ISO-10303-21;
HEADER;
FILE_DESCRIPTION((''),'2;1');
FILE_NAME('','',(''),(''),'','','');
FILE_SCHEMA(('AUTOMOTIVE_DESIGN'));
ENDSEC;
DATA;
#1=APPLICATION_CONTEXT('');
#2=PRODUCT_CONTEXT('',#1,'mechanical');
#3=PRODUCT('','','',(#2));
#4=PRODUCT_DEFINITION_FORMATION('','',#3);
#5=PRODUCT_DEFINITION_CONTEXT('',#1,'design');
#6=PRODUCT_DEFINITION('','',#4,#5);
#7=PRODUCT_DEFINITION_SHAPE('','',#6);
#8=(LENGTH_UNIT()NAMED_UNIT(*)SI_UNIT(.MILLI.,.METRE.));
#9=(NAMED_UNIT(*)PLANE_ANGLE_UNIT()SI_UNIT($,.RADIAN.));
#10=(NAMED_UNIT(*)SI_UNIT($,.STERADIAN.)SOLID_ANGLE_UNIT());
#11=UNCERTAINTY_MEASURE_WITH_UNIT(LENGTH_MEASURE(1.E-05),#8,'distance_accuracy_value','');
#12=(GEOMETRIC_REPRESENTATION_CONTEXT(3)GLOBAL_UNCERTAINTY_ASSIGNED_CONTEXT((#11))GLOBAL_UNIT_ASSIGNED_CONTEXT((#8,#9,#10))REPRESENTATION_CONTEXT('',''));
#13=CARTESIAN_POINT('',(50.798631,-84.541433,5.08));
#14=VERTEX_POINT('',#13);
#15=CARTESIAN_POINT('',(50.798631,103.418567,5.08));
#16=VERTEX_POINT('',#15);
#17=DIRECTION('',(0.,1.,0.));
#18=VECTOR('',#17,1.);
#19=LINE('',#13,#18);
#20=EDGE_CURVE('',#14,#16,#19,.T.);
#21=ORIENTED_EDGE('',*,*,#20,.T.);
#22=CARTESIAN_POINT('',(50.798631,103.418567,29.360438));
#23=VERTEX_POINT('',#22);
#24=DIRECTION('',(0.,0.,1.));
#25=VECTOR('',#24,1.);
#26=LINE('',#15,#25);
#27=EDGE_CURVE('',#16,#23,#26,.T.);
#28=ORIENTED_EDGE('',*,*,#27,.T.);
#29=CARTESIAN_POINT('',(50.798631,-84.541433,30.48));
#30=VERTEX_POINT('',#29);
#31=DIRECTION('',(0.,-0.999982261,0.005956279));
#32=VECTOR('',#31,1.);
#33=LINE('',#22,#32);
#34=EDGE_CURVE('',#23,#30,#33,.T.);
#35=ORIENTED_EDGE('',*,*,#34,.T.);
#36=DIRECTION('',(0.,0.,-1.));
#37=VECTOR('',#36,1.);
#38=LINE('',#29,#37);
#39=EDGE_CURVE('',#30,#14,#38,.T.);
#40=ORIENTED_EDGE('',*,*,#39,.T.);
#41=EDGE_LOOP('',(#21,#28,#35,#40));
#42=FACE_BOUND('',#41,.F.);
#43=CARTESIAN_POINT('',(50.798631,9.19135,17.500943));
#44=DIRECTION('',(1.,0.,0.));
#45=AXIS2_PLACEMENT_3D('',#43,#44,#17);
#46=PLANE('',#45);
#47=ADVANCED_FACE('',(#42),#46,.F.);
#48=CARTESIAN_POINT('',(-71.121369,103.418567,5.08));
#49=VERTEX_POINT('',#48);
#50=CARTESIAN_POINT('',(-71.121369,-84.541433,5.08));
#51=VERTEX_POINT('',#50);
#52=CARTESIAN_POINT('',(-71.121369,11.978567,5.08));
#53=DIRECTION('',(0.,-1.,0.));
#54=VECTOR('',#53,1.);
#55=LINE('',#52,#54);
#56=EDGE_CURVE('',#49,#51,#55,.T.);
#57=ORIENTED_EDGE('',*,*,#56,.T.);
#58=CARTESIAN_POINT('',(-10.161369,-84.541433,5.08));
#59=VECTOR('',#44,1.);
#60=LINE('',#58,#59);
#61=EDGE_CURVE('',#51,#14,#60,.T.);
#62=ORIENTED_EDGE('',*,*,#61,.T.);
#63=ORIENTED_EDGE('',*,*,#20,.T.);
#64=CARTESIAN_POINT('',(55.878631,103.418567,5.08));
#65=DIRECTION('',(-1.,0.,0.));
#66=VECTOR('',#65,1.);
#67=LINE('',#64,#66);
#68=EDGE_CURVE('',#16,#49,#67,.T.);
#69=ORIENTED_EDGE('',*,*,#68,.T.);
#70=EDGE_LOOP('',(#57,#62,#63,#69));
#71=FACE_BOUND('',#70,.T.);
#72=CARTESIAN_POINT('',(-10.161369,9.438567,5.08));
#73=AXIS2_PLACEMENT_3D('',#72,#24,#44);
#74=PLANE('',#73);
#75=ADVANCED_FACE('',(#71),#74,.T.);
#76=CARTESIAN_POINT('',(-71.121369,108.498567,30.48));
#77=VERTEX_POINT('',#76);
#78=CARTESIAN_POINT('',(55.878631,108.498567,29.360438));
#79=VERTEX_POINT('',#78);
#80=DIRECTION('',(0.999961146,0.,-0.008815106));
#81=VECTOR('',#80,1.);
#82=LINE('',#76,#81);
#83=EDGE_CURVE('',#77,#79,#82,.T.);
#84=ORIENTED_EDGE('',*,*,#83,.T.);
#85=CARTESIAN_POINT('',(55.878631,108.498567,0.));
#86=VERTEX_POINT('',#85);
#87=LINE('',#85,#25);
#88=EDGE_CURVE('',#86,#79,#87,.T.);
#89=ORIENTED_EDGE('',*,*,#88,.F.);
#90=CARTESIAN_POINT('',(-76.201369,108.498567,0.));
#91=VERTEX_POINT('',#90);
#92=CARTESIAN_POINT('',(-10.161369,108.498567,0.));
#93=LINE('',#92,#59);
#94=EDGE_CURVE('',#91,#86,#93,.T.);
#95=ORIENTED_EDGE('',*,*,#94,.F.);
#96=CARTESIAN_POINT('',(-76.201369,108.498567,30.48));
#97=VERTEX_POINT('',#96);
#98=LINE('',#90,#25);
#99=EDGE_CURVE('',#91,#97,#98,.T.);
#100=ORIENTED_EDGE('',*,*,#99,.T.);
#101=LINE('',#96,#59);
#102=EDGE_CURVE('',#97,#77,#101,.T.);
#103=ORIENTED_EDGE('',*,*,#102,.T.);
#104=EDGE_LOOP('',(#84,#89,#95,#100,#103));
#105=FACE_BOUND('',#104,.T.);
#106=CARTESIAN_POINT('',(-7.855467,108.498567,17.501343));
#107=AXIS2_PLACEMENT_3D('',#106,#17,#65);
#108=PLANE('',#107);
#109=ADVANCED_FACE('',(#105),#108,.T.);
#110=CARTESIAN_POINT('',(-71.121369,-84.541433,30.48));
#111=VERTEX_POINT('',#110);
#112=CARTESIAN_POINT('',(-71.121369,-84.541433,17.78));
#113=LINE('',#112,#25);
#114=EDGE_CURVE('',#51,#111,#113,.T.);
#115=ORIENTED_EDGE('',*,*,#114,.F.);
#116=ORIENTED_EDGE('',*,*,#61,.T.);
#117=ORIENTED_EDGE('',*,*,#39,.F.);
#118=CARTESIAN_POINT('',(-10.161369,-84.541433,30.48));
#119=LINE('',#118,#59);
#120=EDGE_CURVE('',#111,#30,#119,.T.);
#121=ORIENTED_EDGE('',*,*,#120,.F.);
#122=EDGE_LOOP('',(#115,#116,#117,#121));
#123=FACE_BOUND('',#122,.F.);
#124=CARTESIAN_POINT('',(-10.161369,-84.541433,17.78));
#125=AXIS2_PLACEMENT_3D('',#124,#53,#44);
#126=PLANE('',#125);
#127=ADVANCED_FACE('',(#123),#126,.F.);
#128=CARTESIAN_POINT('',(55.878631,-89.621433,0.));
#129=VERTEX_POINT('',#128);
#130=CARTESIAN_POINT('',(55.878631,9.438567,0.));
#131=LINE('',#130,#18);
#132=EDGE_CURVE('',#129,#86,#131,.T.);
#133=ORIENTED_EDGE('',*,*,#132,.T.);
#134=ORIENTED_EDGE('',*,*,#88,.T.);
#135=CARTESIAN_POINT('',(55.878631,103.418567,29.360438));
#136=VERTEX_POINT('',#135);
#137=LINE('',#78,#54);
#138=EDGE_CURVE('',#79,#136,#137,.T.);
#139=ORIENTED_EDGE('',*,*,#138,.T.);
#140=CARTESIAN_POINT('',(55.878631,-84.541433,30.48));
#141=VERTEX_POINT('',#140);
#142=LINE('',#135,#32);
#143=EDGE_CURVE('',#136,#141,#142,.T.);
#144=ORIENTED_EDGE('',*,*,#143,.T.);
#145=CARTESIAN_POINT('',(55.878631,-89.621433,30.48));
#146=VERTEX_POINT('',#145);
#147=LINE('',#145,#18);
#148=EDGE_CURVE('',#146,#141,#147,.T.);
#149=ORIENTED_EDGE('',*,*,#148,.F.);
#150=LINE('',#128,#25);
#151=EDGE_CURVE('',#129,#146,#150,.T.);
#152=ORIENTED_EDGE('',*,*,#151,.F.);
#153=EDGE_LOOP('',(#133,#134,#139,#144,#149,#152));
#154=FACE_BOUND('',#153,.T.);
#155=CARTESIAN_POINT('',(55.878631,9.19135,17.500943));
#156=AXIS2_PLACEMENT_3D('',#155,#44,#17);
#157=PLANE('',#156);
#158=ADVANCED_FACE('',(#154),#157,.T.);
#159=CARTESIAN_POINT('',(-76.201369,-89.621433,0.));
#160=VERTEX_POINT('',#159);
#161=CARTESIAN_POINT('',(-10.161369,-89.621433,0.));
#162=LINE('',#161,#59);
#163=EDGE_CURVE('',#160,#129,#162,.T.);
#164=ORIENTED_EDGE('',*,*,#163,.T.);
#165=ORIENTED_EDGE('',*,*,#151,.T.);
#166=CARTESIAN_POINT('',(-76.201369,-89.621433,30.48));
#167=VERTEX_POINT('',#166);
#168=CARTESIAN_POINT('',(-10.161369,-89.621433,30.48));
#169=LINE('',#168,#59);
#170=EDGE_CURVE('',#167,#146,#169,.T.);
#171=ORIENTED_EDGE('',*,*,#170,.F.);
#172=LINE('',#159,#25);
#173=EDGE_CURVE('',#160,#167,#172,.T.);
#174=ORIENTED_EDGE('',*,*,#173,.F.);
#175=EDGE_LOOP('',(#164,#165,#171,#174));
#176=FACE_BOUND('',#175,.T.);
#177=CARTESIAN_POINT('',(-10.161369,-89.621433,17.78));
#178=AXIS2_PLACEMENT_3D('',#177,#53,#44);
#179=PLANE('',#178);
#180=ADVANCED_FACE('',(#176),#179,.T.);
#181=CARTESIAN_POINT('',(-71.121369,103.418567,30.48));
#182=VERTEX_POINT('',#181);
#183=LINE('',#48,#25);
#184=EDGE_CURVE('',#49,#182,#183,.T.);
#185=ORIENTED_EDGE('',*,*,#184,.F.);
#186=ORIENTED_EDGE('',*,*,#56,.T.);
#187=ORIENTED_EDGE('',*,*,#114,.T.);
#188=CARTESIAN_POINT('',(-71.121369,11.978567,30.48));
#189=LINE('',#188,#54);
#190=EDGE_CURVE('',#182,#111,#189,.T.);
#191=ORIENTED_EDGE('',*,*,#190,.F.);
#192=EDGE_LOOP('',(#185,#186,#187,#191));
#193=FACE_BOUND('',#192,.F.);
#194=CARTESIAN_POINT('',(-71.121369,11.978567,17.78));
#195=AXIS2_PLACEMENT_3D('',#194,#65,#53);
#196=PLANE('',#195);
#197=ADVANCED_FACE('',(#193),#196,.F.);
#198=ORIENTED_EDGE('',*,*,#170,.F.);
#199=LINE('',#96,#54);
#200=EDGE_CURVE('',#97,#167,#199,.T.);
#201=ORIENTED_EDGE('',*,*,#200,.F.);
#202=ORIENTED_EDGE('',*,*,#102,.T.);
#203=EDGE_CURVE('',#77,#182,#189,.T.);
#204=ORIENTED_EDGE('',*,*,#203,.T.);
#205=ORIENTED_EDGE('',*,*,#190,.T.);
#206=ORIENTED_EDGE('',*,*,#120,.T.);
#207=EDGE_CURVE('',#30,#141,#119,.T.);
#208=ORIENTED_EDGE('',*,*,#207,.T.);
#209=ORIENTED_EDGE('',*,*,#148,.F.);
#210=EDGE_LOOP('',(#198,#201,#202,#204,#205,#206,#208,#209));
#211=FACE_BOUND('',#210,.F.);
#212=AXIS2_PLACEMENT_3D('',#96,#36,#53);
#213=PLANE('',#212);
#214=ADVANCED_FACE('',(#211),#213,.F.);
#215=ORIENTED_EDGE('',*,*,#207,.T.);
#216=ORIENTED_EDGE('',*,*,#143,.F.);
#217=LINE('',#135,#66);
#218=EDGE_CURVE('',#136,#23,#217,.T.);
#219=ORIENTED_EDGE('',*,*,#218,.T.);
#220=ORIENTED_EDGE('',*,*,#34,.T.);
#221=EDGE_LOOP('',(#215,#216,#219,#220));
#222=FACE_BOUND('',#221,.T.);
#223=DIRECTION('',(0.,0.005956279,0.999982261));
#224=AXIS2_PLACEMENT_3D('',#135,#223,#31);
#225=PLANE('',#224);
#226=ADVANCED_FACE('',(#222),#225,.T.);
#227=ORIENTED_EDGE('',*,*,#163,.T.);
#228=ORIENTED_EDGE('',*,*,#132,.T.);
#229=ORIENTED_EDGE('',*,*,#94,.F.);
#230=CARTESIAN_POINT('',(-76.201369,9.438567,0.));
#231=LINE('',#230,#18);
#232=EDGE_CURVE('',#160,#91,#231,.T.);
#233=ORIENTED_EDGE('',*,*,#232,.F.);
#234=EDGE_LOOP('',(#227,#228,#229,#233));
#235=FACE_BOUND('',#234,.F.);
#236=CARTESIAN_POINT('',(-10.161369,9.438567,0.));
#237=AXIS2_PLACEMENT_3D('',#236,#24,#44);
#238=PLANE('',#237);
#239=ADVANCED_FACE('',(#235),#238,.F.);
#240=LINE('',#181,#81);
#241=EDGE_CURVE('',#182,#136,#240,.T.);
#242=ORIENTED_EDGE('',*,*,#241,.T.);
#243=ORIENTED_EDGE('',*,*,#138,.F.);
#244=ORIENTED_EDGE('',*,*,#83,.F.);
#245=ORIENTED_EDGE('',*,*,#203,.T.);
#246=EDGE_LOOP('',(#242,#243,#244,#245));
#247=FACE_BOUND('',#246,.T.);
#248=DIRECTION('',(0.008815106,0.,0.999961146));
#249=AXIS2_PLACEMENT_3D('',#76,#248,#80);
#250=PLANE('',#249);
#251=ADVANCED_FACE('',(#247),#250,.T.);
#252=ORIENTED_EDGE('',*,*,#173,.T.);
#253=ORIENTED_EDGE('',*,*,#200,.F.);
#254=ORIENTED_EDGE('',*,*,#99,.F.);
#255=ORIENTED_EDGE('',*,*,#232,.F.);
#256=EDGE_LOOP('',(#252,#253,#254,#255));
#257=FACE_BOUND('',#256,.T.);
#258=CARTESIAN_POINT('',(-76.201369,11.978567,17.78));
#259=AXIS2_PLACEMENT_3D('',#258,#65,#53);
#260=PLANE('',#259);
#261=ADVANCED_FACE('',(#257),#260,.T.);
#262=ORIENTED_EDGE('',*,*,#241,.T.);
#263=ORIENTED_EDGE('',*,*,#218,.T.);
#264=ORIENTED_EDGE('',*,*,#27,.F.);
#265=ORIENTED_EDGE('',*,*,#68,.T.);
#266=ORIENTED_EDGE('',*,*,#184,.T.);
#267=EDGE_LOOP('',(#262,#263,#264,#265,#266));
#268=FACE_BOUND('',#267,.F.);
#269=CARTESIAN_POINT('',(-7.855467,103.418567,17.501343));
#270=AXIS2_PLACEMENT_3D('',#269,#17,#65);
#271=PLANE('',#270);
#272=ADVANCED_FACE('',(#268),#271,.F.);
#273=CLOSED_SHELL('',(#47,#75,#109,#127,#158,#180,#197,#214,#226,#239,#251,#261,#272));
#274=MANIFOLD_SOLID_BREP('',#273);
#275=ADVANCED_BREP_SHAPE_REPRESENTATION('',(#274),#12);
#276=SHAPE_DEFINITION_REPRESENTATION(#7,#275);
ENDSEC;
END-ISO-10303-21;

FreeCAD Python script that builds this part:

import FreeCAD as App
import Part
import Sketcher
Q = App.Units.Quantity

doc = App.newDocument("Part")
body = doc.addObject("PartDesign::Body", "Body")

sketch1 = body.newObject("Sketcher::SketchObject", "Sketch")
sketch1.AttachmentSupport = (doc.getObject("XY_Plane"), [""])
sketch1.MapMode = "FlatFace"
sketch1.addGeometry(Part.LineSegment(App.Vector(-76, 108, 0), App.Vector(-76, -90, 0)), False)
sketch1.addGeometry(Part.LineSegment(App.Vector(-76, -90, 0), App.Vector(56, -90, 0)), False)
sketch1.addGeometry(Part.LineSegment(App.Vector(56, -90, 0), App.Vector(56, 108, 0)), False)
sketch1.addGeometry(Part.LineSegment(App.Vector(56, 108, 0), App.Vector(-76, 108, 0)), False)
sketch1.addConstraint(Sketcher.Constraint("Coincident", 0, 2, 1, 1))
sketch1.addConstraint(Sketcher.Constraint("Coincident", 1, 2, 2, 1))
sketch1.addConstraint(Sketcher.Constraint("Coincident", 2, 2, 3, 1))
sketch1.addConstraint(Sketcher.Constraint("Coincident", 3, 2, 0, 1))
sketch1.addConstraint(Sketcher.Constraint("Vertical", 0))
sketch1.addConstraint(Sketcher.Constraint("Horizontal", 1))
sketch1.addConstraint(Sketcher.Constraint("Vertical", 2))
sketch1.addConstraint(Sketcher.Constraint("Horizontal", 3))
sketch1.addConstraint(Sketcher.Constraint("DistanceX", 1, 1, 1, 2, Q("5.2 in")))
sketch1.addConstraint(Sketcher.Constraint("DistanceY", 0, 2, 0, 1, Q("7.8 in")))
sketch1.addConstraint(Sketcher.Constraint("DistanceX", 0, 2, -1, 1, 76.201369))
sketch1.addConstraint(Sketcher.Constraint("DistanceY", 0, 2, -1, 1, 89.621433))
pad1 = body.newObject("PartDesign::Pad", "Pad")
pad1.Profile = sketch1
pad1.Length = Q("0.2 in")

sketch2 = body.newObject("Sketcher::SketchObject", "Sketch001")
sketch2.AttachmentSupport = (doc.getObject("XZ_Plane"), [""])
sketch2.MapMode = "FlatFace"
sketch2.AttachmentOffset = App.Placement(App.Vector(0, 0, 89.621433), App.Rotation())
sketch2.addGeometry(Part.LineSegment(App.Vector(-76, 30, 0), App.Vector(-76, 5, 0)), False)
sketch2.addGeometry(Part.LineSegment(App.Vector(-76, 5, 0), App.Vector(56, 5, 0)), False)
sketch2.addGeometry(Part.LineSegment(App.Vector(56, 5, 0), App.Vector(56, 30, 0)), False)
sketch2.addGeometry(Part.LineSegment(App.Vector(56, 30, 0), App.Vector(-76, 30, 0)), False)
sketch2.addConstraint(Sketcher.Constraint("Coincident", 0, 2, 1, 1))
sketch2.addConstraint(Sketcher.Constraint("Coincident", 1, 2, 2, 1))
sketch2.addConstraint(Sketcher.Constraint("Coincident", 2, 2, 3, 1))
sketch2.addConstraint(Sketcher.Constraint("Coincident", 3, 2, 0, 1))
sketch2.addConstraint(Sketcher.Constraint("Vertical", 0))
sketch2.addConstraint(Sketcher.Constraint("Horizontal", 1))
sketch2.addConstraint(Sketcher.Constraint("Vertical", 2))
sketch2.addConstraint(Sketcher.Constraint("Horizontal", 3))
sketch2.addConstraint(Sketcher.Constraint("DistanceY", 0, 2, 0, 1, Q("1 in")))
sketch2.addConstraint(Sketcher.Constraint("DistanceX", 1, 1, 1, 2, Q("5.2 in")))
sketch2.addConstraint(Sketcher.Constraint("DistanceY", -1, 1, 0, 2, Q("0.2 in")))
sketch2.addConstraint(Sketcher.Constraint("DistanceX", 0, 2, -1, 1, 76.201369))
pad2 = body.newObject("PartDesign::Pad", "Pad001")
pad2.Profile = sketch2
pad2.Length = Q("0.2 in")
pad2.Reversed = True

sketch3 = body.newObject("Sketcher::SketchObject", "Sketch002")
sketch3.AttachmentSupport = (doc.getObject("YZ_Plane"), [""])
sketch3.MapMode = "FlatFace"
sketch3.AttachmentOffset = App.Placement(App.Vector(0, 0, -76.201369), App.Rotation())
sketch3.addGeometry(Part.LineSegment(App.Vector(108, 30, 0), App.Vector(108, 5, 0)), False)
sketch3.addGeometry(Part.LineSegment(App.Vector(108, 5, 0), App.Vector(-85, 5, 0)), False)
sketch3.addGeometry(Part.LineSegment(App.Vector(-85, 5, 0), App.Vector(-85, 30, 0)), False)
sketch3.addGeometry(Part.LineSegment(App.Vector(-85, 30, 0), App.Vector(108, 30, 0)), False)
sketch3.addConstraint(Sketcher.Constraint("Coincident", 0, 2, 1, 1))
sketch3.addConstraint(Sketcher.Constraint("Coincident", 1, 2, 2, 1))
sketch3.addConstraint(Sketcher.Constraint("Coincident", 2, 2, 3, 1))
sketch3.addConstraint(Sketcher.Constraint("Coincident", 3, 2, 0, 1))
sketch3.addConstraint(Sketcher.Constraint("Vertical", 0))
sketch3.addConstraint(Sketcher.Constraint("Horizontal", 1))
sketch3.addConstraint(Sketcher.Constraint("Vertical", 2))
sketch3.addConstraint(Sketcher.Constraint("Horizontal", 3))
sketch3.addConstraint(Sketcher.Constraint("DistanceY", 0, 2, 0, 1, Q("1 in")))
sketch3.addConstraint(Sketcher.Constraint("DistanceX", 1, 2, 1, 1, Q("7.6 in")))
sketch3.addConstraint(Sketcher.Constraint("DistanceY", -1, 1, 0, 2, Q("0.2 in")))
sketch3.addConstraint(Sketcher.Constraint("DistanceX", -1, 1, 0, 2, 108.498567))
pad3 = body.newObject("PartDesign::Pad", "Pad002")
pad3.Profile = sketch3
pad3.Length = Q("0.2 in")

sketch4 = body.newObject("Sketcher::SketchObject", "Sketch003")
sketch4.AttachmentSupport = (doc.getObject("XZ_Plane"), [""])
sketch4.MapMode = "FlatFace"
sketch4.AttachmentOffset = App.Placement(App.Vector(0, 0, -108.498567), App.Rotation())
sketch4.addGeometry(Part.LineSegment(App.Vector(56, 29, 0), App.Vector(56, 5, 0)), False)
sketch4.addGeometry(Part.LineSegment(App.Vector(56, 5, 0), App.Vector(-71, 5, 0)), False)
sketch4.addGeometry(Part.LineSegment(App.Vector(-71, 5, 0), App.Vector(-71, 30, 0)), False)
sketch4.addGeometry(Part.LineSegment(App.Vector(-71, 30, 0), App.Vector(56, 29, 0)), False)
sketch4.addConstraint(Sketcher.Constraint("Coincident", 0, 2, 1, 1))
sketch4.addConstraint(Sketcher.Constraint("Coincident", 1, 2, 2, 1))
sketch4.addConstraint(Sketcher.Constraint("Coincident", 2, 2, 3, 1))
sketch4.addConstraint(Sketcher.Constraint("Coincident", 3, 2, 0, 1))
sketch4.addConstraint(Sketcher.Constraint("Vertical", 0))
sketch4.addConstraint(Sketcher.Constraint("Horizontal", 1))
sketch4.addConstraint(Sketcher.Constraint("Vertical", 2))
sketch4.addConstraint(Sketcher.Constraint("DistanceX", 1, 2, 1, 1, Q("5 in")))
sketch4.addConstraint(Sketcher.Constraint("DistanceY", 2, 1, 2, 2, Q("1 in")))
sketch4.addConstraint(Sketcher.Constraint("DistanceY", -1, 1, 0, 2, Q("0.2 in")))
sketch4.addConstraint(Sketcher.Constraint("DistanceY", 0, 2, 0, 1, 24.280438))
sketch4.addConstraint(Sketcher.Constraint("DistanceX", -1, 1, 0, 2, 55.878631))
pad4 = body.newObject("PartDesign::Pad", "Pad003")
pad4.Profile = sketch4
pad4.Length = Q("0.2 in")

sketch5 = body.newObject("Sketcher::SketchObject", "Sketch004")
sketch5.AttachmentSupport = (doc.getObject("YZ_Plane"), [""])
sketch5.MapMode = "FlatFace"
sketch5.AttachmentOffset = App.Placement(App.Vector(0, 0, 55.878631), App.Rotation())
sketch5.addGeometry(Part.LineSegment(App.Vector(103, 29, 0), App.Vector(-85, 30, 0)), False)
sketch5.addGeometry(Part.LineSegment(App.Vector(-85, 30, 0), App.Vector(-85, 5, 0)), False)
sketch5.addGeometry(Part.LineSegment(App.Vector(-85, 5, 0), App.Vector(103, 5, 0)), False)
sketch5.addGeometry(Part.LineSegment(App.Vector(103, 5, 0), App.Vector(103, 29, 0)), False)
sketch5.addConstraint(Sketcher.Constraint("Coincident", 0, 2, 1, 1))
sketch5.addConstraint(Sketcher.Constraint("Coincident", 1, 2, 2, 1))
sketch5.addConstraint(Sketcher.Constraint("Coincident", 2, 2, 3, 1))
sketch5.addConstraint(Sketcher.Constraint("Coincident", 3, 2, 0, 1))
sketch5.addConstraint(Sketcher.Constraint("Vertical", 1))
sketch5.addConstraint(Sketcher.Constraint("Horizontal", 2))
sketch5.addConstraint(Sketcher.Constraint("Vertical", 3))
sketch5.addConstraint(Sketcher.Constraint("DistanceY", 1, 2, 1, 1, Q("1 in")))
sketch5.addConstraint(Sketcher.Constraint("DistanceX", 2, 1, 2, 2, Q("7.4 in")))
sketch5.addConstraint(Sketcher.Constraint("DistanceY", -1, 1, 0, 2, Q("1.2 in")))
sketch5.addConstraint(Sketcher.Constraint("DistanceY", 3, 1, 3, 2, 24.280438))
sketch5.addConstraint(Sketcher.Constraint("DistanceX", 0, 2, -1, 1, 84.541433))
pad5 = body.newObject("PartDesign::Pad", "Pad004")
pad5.Profile = sketch5
pad5.Length = Q("0.2 in")
pad5.Reversed = True

doc.recompute()
